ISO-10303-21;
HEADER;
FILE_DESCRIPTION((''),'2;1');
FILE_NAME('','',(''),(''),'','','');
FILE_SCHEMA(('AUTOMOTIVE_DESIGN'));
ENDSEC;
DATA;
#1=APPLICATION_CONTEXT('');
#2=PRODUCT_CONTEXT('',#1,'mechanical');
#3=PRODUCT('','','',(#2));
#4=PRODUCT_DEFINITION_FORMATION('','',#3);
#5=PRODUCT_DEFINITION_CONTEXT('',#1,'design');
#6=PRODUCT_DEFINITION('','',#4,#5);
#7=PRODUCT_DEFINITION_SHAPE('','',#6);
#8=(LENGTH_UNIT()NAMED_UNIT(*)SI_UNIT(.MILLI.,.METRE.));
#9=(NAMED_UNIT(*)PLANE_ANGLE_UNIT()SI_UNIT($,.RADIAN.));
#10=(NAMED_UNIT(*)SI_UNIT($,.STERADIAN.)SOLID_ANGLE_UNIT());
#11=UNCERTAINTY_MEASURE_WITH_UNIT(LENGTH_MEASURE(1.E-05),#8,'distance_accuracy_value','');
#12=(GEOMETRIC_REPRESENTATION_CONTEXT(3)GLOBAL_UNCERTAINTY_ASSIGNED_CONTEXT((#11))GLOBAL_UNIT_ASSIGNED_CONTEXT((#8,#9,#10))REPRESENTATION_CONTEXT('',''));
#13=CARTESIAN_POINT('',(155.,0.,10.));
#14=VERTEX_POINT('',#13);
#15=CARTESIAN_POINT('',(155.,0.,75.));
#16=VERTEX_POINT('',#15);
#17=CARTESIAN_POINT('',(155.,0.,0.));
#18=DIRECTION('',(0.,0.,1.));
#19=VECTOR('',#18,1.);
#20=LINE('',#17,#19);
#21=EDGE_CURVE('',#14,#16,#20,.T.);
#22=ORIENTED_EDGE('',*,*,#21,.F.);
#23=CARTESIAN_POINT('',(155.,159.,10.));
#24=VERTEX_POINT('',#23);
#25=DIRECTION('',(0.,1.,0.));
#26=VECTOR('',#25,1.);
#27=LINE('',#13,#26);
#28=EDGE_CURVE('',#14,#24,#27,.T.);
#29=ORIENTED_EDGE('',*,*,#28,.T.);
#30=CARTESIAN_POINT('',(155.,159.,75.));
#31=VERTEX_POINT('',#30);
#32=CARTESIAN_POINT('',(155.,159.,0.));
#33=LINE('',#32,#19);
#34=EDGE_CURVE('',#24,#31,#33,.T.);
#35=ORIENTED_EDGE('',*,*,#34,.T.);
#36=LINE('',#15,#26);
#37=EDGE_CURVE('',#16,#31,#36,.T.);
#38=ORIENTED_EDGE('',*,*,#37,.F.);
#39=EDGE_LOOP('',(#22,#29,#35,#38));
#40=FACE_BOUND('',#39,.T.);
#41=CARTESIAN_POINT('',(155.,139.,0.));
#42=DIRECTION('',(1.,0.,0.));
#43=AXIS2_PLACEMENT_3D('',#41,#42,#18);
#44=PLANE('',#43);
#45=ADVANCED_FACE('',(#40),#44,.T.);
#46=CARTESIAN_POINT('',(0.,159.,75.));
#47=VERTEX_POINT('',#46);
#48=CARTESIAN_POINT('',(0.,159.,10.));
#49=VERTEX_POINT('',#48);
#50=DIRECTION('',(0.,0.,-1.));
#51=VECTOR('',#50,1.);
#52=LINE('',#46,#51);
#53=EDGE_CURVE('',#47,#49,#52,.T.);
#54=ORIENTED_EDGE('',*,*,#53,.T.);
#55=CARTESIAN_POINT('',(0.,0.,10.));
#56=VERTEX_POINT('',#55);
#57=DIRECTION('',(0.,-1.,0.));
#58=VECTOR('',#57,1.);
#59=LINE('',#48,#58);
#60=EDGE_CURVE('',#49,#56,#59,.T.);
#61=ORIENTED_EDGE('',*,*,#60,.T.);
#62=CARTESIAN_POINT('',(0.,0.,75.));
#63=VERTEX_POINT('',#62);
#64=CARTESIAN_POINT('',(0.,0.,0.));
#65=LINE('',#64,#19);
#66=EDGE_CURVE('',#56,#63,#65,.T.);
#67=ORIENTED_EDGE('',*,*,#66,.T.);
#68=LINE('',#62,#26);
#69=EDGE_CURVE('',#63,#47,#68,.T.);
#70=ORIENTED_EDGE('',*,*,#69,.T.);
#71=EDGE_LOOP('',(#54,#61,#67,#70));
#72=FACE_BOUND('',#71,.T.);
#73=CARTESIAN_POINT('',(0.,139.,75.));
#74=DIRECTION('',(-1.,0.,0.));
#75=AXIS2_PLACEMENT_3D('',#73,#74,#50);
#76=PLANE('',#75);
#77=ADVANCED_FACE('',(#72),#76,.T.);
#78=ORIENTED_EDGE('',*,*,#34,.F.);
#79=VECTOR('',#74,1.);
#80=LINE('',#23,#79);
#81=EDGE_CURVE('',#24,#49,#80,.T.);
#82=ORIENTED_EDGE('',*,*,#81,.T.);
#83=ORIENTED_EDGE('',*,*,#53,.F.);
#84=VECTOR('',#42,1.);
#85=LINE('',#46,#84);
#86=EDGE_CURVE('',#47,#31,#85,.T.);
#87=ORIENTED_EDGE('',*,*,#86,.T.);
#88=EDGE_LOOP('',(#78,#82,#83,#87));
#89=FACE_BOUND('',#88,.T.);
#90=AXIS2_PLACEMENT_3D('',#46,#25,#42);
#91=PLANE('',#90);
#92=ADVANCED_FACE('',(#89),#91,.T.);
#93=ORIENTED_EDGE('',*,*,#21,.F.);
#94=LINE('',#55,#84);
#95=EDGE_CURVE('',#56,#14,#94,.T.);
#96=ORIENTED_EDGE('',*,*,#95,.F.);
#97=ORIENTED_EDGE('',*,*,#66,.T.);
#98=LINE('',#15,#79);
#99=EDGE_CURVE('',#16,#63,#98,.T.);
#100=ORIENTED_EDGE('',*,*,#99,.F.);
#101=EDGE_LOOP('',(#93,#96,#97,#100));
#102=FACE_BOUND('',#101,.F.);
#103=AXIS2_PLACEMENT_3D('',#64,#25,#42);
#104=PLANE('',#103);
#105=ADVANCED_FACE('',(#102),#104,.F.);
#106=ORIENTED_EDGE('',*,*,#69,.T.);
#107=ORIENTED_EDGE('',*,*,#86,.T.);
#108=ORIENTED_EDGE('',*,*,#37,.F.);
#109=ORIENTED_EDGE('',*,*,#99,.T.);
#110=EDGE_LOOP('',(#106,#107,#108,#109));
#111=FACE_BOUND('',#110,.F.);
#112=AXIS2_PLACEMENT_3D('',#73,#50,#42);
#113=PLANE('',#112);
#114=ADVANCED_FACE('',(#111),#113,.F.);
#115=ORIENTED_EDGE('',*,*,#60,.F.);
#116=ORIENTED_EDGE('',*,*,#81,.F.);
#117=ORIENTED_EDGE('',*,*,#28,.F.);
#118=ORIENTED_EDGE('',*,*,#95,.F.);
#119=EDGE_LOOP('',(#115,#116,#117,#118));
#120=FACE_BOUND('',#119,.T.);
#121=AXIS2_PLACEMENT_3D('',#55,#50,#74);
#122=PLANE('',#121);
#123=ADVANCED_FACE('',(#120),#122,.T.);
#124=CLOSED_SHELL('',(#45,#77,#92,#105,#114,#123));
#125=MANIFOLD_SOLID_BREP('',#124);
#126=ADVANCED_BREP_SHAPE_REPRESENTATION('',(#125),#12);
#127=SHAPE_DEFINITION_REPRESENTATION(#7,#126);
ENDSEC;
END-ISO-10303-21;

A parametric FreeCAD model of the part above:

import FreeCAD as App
import Part
import Sketcher
from FreeCAD import Vector


def add_polygon(sketch, points):
    """Adds a closed chain of lines whose ends are joined by coincident constraints."""
    first, n = sketch.GeometryCount, len(points)
    for a, b in zip(points, points[1:] + points[:1]):
        sketch.addGeometry(Part.LineSegment(App.Vector(*a, 0), App.Vector(*b, 0)), False)
    for i in range(n):
        sketch.addConstraint(Sketcher.Constraint("Coincident", first + i, 2, first + (i + 1) % n, 1))

doc = App.newDocument("Part")
params = doc.addObject("Spreadsheet::Sheet", "Params")
for row, (alias, value) in enumerate([
    ("sketch1_width", "135 mm"),
    ("sketch1_height", "139 mm"),
    ("pad1_length", "75 mm"),
    ("sketch2_width", "139 mm"),
    ("sketch2_height", "75 mm"),
    ("pad2_length", "20 mm"),
    ("sketch3_width", "155 mm"),
    ("sketch3_height", "75 mm"),
    ("pad3_length", "20 mm"),
    ("sketch4_width", "155 mm"),
    ("sketch4_height", "159 mm"),
    ("pocket1_length", "10 mm"),
], start=1):
    params.set(f"A{row}", alias)
    params.set(f"B{row}", "=" + value)
    params.setAlias(f"B{row}", alias)

body = doc.addObject("PartDesign::Body", "Body")

# Sketch on XY plane
sketch1 = body.newObject("Sketcher::SketchObject", "Sketch")
sketch1.AttachmentSupport = (doc.getObject("XY_Plane"), [""])
sketch1.MapMode = "FlatFace"
add_polygon(sketch1, [(0, 139), (0, 0), (135, 0), (135, 139)])  # lines 0-3
sketch1.addConstraint([
    Sketcher.Constraint("Vertical", 0),
    Sketcher.Constraint("Horizontal", 1),
    Sketcher.Constraint("Vertical", 2),
    Sketcher.Constraint("Horizontal", 3),
    Sketcher.Constraint("Coincident", 0, 2, -1, 1),
    Sketcher.Constraint("DistanceX", 1, 1, 1, 2, 135.0),
    Sketcher.Constraint("DistanceY", 0, 2, 0, 1, 139.0),
])
sketch1.setExpression("Constraints[9]", "Params.sketch1_width")
sketch1.setExpression("Constraints[10]", "Params.sketch1_height")
pad1 = body.newObject("PartDesign::Pad", "Pad")
pad1.Profile = sketch1
pad1.setExpression("Length", "Params.pad1_length")

# Sketch on YZ plane
sketch2 = body.newObject("Sketcher::SketchObject", "Sketch001")
sketch2.AttachmentSupport = (doc.getObject("YZ_Plane"), [""])
sketch2.MapMode = "FlatFace"
sketch2.AttachmentOffset = App.Placement(Vector(0, 0, 135), App.Rotation())
add_polygon(sketch2, [(0, 0), (139, 0), (139, 75), (0, 75)])  # lines 0-3
sketch2.addConstraint([
    Sketcher.Constraint("Horizontal", 0),
    Sketcher.Constraint("Vertical", 1),
    Sketcher.Constraint("Horizontal", 2),
    Sketcher.Constraint("Vertical", 3),
    Sketcher.Constraint("Coincident", 3, 2, -1, 1),
    Sketcher.Constraint("DistanceX", 0, 1, 0, 2, 139.0),
    Sketcher.Constraint("DistanceY", 1, 1, 1, 2, 75.0),
])
sketch2.setExpression("Constraints[9]", "Params.sketch2_width")
sketch2.setExpression("Constraints[10]", "Params.sketch2_height")
pad2 = body.newObject("PartDesign::Pad", "Pad001")
pad2.Profile = sketch2
pad2.setExpression("Length", "Params.pad2_length")

# Sketch on XZ plane
sketch3 = body.newObject("Sketcher::SketchObject", "Sketch002")
sketch3.AttachmentSupport = (doc.getObject("XZ_Plane"), [""])
sketch3.MapMode = "FlatFace"
sketch3.AttachmentOffset = App.Placement(Vector(0, 0, -139), App.Rotation())
add_polygon(sketch3, [(0, 0), (0, 75), (155, 75), (155, 0)])  # lines 0-3
sketch3.addConstraint([
    Sketcher.Constraint("Vertical", 0),
    Sketcher.Constraint("Horizontal", 1),
    Sketcher.Constraint("Vertical", 2),
    Sketcher.Constraint("Horizontal", 3),
    Sketcher.Constraint("Coincident", 3, 2, -1, 1),
    Sketcher.Constraint("DistanceX", 1, 1, 1, 2, 155.0),
    Sketcher.Constraint("DistanceY", 0, 1, 0, 2, 75.0),
])
sketch3.setExpression("Constraints[9]", "Params.sketch3_width")
sketch3.setExpression("Constraints[10]", "Params.sketch3_height")
pad3 = body.newObject("PartDesign::Pad", "Pad002")
pad3.Profile = sketch3
pad3.setExpression("Length", "Params.pad3_length")
pad3.Reversed = True

# Sketch on XY plane
sketch4 = body.newObject("Sketcher::SketchObject", "Sketch003")
sketch4.AttachmentSupport = (doc.getObject("XY_Plane"), [""])
sketch4.MapMode = "FlatFace"
add_polygon(sketch4, [(155, 159), (155, 0), (0, 0), (0, 159)])  # lines 0-3
sketch4.addConstraint([
    Sketcher.Constraint("Vertical", 0),
    Sketcher.Constraint("Horizontal", 1),
    Sketcher.Constraint("Vertical", 2),
    Sketcher.Constraint("Horizontal", 3),
    Sketcher.Constraint("Coincident", 1, 2, -1, 1),
    Sketcher.Constraint("DistanceX", 1, 2, 1, 1, 155.0),
    Sketcher.Constraint("DistanceY", 0, 2, 0, 1, 159.0),
])
sketch4.setExpression("Constraints[9]", "Params.sketch4_width")
sketch4.setExpression("Constraints[10]", "Params.sketch4_height")
pocket1 = body.newObject("PartDesign::Pocket", "Pocket")
pocket1.Profile = sketch4
pocket1.setExpression("Length", "Params.pocket1_length")
pocket1.Reversed = True

doc.recompute()
